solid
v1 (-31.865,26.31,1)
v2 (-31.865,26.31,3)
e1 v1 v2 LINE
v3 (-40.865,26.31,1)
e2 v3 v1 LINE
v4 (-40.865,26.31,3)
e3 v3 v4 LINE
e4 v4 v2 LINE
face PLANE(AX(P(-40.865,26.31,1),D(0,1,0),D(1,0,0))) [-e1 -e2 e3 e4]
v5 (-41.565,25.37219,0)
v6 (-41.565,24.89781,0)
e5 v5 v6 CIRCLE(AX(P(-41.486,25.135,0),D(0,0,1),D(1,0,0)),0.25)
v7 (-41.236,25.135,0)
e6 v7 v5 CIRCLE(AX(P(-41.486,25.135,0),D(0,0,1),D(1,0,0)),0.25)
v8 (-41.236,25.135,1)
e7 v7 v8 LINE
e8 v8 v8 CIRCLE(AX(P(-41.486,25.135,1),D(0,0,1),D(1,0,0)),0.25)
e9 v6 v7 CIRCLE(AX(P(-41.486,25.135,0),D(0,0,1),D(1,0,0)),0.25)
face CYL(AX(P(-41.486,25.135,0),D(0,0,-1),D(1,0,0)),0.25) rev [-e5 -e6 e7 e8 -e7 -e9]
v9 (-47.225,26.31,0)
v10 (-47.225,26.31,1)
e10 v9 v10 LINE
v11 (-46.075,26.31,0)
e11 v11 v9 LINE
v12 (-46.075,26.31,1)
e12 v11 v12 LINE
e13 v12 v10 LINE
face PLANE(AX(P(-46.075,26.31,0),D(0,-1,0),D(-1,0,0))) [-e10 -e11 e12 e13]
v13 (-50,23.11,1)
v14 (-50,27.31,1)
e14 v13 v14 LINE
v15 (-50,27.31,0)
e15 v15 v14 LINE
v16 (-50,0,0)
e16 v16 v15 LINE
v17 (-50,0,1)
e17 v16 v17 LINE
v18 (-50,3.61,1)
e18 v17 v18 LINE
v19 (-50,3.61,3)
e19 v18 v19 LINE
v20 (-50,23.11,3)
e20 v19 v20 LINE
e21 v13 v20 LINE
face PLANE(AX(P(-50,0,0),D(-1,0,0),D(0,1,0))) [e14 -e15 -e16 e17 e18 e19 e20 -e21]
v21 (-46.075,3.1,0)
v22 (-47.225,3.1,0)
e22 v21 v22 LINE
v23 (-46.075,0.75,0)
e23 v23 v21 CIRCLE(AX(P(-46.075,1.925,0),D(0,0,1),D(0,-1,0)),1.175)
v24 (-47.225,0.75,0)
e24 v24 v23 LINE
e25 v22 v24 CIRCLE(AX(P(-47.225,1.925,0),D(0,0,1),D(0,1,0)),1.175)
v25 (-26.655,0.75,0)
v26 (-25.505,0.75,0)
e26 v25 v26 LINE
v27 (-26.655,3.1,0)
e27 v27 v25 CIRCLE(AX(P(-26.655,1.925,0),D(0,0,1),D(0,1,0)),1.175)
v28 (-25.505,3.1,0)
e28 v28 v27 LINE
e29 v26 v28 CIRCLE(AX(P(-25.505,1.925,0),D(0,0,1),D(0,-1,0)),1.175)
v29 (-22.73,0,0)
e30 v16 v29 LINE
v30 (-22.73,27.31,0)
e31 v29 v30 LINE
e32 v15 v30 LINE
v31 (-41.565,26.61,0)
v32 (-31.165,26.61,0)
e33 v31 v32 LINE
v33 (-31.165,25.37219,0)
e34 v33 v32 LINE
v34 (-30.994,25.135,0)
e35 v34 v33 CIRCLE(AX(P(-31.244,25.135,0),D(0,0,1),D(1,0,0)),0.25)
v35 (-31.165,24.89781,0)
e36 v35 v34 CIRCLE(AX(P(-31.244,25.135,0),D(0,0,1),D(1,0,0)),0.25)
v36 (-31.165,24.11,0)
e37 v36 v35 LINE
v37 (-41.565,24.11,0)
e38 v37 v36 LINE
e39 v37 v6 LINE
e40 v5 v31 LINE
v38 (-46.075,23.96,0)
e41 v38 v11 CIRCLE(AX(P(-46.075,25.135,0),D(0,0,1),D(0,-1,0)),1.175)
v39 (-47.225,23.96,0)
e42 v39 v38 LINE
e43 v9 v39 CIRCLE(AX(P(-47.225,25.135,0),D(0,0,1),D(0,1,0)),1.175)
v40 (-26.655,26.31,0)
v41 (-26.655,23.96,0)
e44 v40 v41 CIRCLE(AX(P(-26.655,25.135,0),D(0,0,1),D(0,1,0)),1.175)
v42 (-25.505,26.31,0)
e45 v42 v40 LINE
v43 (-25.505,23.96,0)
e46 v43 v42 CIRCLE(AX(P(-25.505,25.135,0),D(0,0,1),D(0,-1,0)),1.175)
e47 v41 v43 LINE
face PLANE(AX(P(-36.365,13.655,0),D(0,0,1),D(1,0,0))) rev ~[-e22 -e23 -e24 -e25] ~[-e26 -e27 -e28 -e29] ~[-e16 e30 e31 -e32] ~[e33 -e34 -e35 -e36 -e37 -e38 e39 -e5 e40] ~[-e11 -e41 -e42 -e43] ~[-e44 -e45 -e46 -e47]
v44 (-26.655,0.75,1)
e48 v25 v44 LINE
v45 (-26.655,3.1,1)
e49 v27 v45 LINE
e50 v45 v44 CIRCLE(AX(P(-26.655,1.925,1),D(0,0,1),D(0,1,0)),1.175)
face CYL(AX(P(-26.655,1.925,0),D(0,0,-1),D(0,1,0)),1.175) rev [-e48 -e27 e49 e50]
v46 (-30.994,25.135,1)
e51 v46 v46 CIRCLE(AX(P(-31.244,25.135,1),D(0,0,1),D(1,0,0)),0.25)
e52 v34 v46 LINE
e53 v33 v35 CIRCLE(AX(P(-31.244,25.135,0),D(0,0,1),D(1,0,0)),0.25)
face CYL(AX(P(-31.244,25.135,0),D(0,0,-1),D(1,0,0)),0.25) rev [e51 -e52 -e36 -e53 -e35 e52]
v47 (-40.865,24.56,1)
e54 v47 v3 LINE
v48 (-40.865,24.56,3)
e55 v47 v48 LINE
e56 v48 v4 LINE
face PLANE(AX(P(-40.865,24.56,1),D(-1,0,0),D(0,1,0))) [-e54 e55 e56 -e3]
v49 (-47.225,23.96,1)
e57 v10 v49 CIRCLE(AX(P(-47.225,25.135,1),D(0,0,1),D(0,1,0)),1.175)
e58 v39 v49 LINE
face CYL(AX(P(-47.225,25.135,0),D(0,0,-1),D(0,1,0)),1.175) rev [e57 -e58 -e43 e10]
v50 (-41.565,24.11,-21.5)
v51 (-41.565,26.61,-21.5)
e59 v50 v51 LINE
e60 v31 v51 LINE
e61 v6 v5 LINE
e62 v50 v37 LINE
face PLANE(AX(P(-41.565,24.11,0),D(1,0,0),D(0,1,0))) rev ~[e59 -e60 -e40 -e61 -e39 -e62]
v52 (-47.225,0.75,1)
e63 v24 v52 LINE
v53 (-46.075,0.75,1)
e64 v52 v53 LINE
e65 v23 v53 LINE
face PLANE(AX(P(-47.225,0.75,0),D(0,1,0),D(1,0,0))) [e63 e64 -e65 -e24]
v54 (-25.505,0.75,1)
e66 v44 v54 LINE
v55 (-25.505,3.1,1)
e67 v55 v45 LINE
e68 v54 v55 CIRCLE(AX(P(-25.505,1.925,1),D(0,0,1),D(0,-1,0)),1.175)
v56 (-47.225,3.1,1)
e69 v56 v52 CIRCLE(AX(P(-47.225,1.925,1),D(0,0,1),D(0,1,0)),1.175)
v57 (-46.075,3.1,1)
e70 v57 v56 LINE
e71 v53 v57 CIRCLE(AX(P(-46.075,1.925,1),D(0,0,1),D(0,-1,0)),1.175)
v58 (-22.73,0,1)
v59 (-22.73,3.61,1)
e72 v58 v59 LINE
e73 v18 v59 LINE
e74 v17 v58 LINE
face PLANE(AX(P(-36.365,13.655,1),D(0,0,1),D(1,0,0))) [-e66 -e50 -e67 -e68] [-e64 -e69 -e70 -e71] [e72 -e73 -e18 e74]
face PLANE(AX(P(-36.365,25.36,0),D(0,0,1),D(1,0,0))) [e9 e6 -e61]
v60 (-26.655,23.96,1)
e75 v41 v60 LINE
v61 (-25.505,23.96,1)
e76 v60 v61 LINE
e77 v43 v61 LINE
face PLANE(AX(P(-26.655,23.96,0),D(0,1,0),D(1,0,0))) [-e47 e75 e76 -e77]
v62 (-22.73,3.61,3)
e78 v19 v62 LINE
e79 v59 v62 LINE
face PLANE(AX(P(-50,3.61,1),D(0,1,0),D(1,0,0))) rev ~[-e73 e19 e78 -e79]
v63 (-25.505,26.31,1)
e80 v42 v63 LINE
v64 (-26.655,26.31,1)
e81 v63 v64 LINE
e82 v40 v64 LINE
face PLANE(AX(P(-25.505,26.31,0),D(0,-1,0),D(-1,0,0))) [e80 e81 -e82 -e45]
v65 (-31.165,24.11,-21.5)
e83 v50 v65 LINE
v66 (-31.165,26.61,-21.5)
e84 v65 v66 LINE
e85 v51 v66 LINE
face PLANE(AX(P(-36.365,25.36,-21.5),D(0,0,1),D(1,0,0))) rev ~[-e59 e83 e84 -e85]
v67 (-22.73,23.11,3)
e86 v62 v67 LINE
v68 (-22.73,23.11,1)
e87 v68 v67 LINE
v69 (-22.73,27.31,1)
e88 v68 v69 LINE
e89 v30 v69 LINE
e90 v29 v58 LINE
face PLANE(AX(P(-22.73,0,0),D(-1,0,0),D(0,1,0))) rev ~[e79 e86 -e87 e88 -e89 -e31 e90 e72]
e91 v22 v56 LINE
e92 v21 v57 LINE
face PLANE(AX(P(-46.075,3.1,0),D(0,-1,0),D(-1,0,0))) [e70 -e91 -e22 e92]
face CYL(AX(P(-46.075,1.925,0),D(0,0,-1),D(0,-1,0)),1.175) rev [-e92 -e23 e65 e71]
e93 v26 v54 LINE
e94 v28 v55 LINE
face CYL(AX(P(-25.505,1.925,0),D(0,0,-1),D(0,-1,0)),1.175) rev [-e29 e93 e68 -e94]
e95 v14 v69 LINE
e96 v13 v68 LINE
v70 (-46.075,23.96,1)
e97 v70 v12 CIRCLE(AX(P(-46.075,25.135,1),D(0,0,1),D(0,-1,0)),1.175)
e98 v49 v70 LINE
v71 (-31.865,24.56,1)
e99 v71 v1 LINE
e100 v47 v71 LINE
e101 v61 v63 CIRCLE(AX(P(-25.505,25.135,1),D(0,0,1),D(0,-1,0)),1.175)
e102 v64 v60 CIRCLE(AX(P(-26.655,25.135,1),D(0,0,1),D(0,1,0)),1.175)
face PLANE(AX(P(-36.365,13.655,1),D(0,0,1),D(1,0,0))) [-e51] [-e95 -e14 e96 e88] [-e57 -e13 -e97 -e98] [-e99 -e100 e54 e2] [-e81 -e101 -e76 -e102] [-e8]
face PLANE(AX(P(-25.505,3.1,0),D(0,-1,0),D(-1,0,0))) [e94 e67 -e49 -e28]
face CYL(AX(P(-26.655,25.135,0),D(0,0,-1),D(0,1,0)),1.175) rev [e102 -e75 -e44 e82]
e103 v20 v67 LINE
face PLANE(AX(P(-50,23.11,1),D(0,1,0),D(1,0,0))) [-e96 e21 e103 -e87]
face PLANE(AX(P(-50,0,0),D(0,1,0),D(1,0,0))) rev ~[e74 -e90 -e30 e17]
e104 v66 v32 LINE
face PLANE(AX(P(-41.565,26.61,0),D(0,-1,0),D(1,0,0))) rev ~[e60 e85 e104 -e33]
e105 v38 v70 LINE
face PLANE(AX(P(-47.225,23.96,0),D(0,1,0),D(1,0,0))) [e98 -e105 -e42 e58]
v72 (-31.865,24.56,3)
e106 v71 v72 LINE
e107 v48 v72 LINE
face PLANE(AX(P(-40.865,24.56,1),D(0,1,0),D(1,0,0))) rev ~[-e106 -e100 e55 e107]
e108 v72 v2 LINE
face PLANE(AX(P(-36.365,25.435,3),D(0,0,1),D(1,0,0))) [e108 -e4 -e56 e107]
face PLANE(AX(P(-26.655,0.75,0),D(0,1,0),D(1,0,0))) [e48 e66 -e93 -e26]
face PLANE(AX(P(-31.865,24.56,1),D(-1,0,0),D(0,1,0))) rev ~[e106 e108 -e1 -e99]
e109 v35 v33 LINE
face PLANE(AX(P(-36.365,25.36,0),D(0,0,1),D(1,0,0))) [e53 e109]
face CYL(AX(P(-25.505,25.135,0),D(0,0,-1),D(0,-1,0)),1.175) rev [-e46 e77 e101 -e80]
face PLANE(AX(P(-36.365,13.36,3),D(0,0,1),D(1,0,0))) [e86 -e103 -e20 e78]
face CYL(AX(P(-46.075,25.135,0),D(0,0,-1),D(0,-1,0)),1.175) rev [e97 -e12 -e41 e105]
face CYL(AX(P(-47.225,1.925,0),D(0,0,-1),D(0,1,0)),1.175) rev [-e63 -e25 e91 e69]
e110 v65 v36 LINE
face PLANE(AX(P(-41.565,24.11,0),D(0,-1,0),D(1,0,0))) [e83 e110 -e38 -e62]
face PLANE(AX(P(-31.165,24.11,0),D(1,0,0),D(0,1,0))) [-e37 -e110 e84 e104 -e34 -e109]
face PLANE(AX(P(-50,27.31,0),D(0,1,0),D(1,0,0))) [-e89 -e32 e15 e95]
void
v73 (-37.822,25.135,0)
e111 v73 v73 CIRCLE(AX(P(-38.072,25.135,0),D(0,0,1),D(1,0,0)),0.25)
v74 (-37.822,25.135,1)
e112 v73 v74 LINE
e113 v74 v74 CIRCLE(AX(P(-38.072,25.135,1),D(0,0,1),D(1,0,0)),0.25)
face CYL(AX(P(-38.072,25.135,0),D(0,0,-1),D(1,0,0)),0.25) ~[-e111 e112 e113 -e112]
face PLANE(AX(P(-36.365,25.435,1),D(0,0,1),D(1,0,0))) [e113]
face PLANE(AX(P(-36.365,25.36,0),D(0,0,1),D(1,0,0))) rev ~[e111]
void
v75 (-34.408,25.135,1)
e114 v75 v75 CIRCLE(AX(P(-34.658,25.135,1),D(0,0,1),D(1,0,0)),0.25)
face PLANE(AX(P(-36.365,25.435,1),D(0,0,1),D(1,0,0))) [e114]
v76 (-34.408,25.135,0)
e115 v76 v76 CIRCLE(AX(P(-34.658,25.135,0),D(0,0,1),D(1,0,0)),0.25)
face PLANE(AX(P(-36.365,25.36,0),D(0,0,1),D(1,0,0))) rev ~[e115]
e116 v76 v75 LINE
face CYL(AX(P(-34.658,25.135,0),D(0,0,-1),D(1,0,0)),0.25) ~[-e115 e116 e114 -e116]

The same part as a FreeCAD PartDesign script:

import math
import FreeCAD as App
import Part
import Sketcher

V = App.Vector
Q = App.Units.Quantity


def add_polygon(sketch, points):
    """Adds a closed chain of lines whose ends are joined by coincident constraints."""
    first, n = sketch.GeometryCount, len(points)
    for a, b in zip(points, points[1:] + points[:1]):
        sketch.addGeometry(Part.LineSegment(App.Vector(*a, 0), App.Vector(*b, 0)), False)
    for i in range(n):
        sketch.addConstraint(Sketcher.Constraint("Coincident", first + i, 2, first + (i + 1) % n, 1))

doc = App.newDocument("Part")
body = doc.addObject("PartDesign::Body", "Body")
body.AllowCompound = True

# Sketch on XY plane
sketch1 = doc.addObject("Sketcher::SketchObject", "Sketch")
body.addObject(sketch1)
sketch1.AttachmentSupport = (doc.XY_Plane, [""])
sketch1.MapMode = "FlatFace"
add_polygon(sketch1, [(0, 23.1), (0, 3.6), (27.3, 3.6), (27.3, 23.1)])  # lines 0-3
add_polygon(sketch1, [(9.1, 26.3), (9.1, 24.6), (18.1, 24.6), (18.1, 26.3)])  # lines 4-7
sketch1.addConstraint([
    Sketcher.Constraint("Vertical", 0),
    Sketcher.Constraint("Horizontal", 1),
    Sketcher.Constraint("Vertical", 2),
    Sketcher.Constraint("Horizontal", 3),
    Sketcher.Constraint("Vertical", 4),
    Sketcher.Constraint("Horizontal", 5),
    Sketcher.Constraint("Vertical", 6),
    Sketcher.Constraint("Horizontal", 7),
    Sketcher.Constraint("PointOnObject", 0, 2, -2),
    Sketcher.Constraint("DistanceX", 5, 1, 5, 2, Q("9 mm")),
    Sketcher.Constraint("DistanceY", 0, 2, 0, 1, Q("19.5 mm")),
    Sketcher.Constraint("DistanceX", 1, 1, 1, 2, Q("27.27 mm")),
    Sketcher.Constraint("DistanceY", 4, 2, 4, 1, Q("1.75 mm")),
    Sketcher.Constraint("DistanceY", 2, 2, 6, 2, Q("3.2 mm")),
    Sketcher.Constraint("DistanceY", -1, 1, 0, 2, Q("3.61 mm")),
    Sketcher.Constraint("DistanceX", -1, 1, 4, 2, Q("9.135 mm")),
])
pad1 = doc.addObject("PartDesign::Pad", "Pad")
body.addObject(pad1)
pad1.Profile = sketch1
pad1.Length = 2
body2 = doc.addObject("PartDesign::Body", "Body001")
body2.AllowCompound = True
doc.recompute()

body.Placement = App.Placement(V(0, 0, 1), App.Rotation(V(0, 0, 1), 0))
boolean = doc.addObject("PartDesign::Boolean", "Boolean")
body2.addObject(boolean)
boolean.Type = "Fuse"
boolean.addObjects([body])
body3 = doc.addObject("PartDesign::Body", "Body002")

# Sketch on XY plane
sketch2 = doc.addObject("Sketcher::SketchObject", "Sketch001")
body3.addObject(sketch2)
sketch2.AttachmentSupport = (doc.getObject("XY_Plane002"), [""])
sketch2.MapMode = "FlatFace"
add_polygon(sketch2, [(0, 27.31), (0, 0), (27.27, 0), (27.27, 27.31)])  # lines 0-3
sketch2.addGeometry(Part.ArcOfCircle(Part.Circle(V(2.77, 1.93, 0), V(0, 0, 1), 1.18), math.radians(90), math.radians(270)), False)  # 4
sketch2.addGeometry(Part.LineSegment(V(2.77, 3.1, 0), V(3.92, 3.1, 0)), False)  # 5
sketch2.addGeometry(Part.ArcOfCircle(Part.Circle(V(3.92, 1.93, 0), V(0, 0, 1), 1.18), math.radians(-90), math.radians(90)), False)  # 6
sketch2.addGeometry(Part.LineSegment(V(3.92, 0.75, 0), V(2.77, 0.75, 0)), False)  # 7
sketch2.addGeometry(Part.ArcOfCircle(Part.Circle(V(23.34, 1.93, 0), V(0, 0, 1), 1.18), math.radians(90), math.radians(270)), False)  # 8
sketch2.addGeometry(Part.LineSegment(V(23.34, 3.1, 0), V(24.5, 3.1, 0)), False)  # 9
sketch2.addGeometry(Part.ArcOfCircle(Part.Circle(V(24.5, 1.93, 0), V(0, 0, 1), 1.18), math.radians(-90), math.radians(90)), False)  # 10
sketch2.addGeometry(Part.LineSegment(V(24.5, 0.75, 0), V(23.34, 0.75, 0)), False)  # 11
sketch2.addGeometry(Part.ArcOfCircle(Part.Circle(V(2.77, 25.14, 0), V(0, 0, 1), 1.18), math.radians(90), math.radians(270)), False)  # 12
sketch2.addGeometry(Part.LineSegment(V(2.77, 26.31, 0), V(3.92, 26.31, 0)), False)  # 13
sketch2.addGeometry(Part.ArcOfCircle(Part.Circle(V(3.92, 25.14, 0), V(0, 0, 1), 1.18), math.radians(-90), math.radians(90)), False)  # 14
sketch2.addGeometry(Part.LineSegment(V(3.92, 23.96, 0), V(2.77, 23.96, 0)), False)  # 15
sketch2.addGeometry(Part.Circle(V(8.51, 25.14, 0), V(0, 0, 1), 0.25), False)  # 16
sketch2.addGeometry(Part.Circle(V(11.93, 25.14, 0), V(0, 0, 1), 0.25), False)  # 17
sketch2.addGeometry(Part.Circle(V(15.34, 25.14, 0), V(0, 0, 1), 0.25), False)  # 18
sketch2.addGeometry(Part.Circle(V(18.76, 25.14, 0), V(0, 0, 1), 0.25), False)  # 19
sketch2.addGeometry(Part.ArcOfCircle(Part.Circle(V(23.34, 25.14, 0), V(0, 0, 1), 1.18), math.radians(90), math.radians(270)), False)  # 20
sketch2.addGeometry(Part.LineSegment(V(23.34, 26.31, 0), V(24.5, 26.31, 0)), False)  # 21
sketch2.addGeometry(Part.ArcOfCircle(Part.Circle(V(24.5, 25.14, 0), V(0, 0, 1), 1.18), math.radians(-90), math.radians(90)), False)  # 22
sketch2.addGeometry(Part.LineSegment(V(24.5, 23.96, 0), V(23.34, 23.96, 0)), False)  # 23
sketch2.addConstraint([
    Sketcher.Constraint("Tangent", 4, 1, 5, 1),
    Sketcher.Constraint("Tangent", 5, 2, 6, 2),
    Sketcher.Constraint("Tangent", 6, 1, 7, 1),
    Sketcher.Constraint("Tangent", 7, 2, 4, 2),
    Sketcher.Constraint("Tangent", 8, 1, 9, 1),
    Sketcher.Constraint("Tangent", 9, 2, 10, 2),
    Sketcher.Constraint("Tangent", 10, 1, 11, 1),
    Sketcher.Constraint("Tangent", 11, 2, 8, 2),
    Sketcher.Constraint("Tangent", 12, 1, 13, 1),
    Sketcher.Constraint("Tangent", 13, 2, 14, 2),
    Sketcher.Constraint("Tangent", 14, 1, 15, 1),
    Sketcher.Constraint("Tangent", 15, 2, 12, 2),
    Sketcher.Constraint("Tangent", 20, 1, 21, 1),
    Sketcher.Constraint("Tangent", 21, 2, 22, 2),
    Sketcher.Constraint("Tangent", 22, 1, 23, 1),
    Sketcher.Constraint("Tangent", 23, 2, 20, 2),
    Sketcher.Constraint("Vertical", 0),
    Sketcher.Constraint("Horizontal", 1),
    Sketcher.Constraint("Vertical", 2),
    Sketcher.Constraint("Horizontal", 3),
    Sketcher.Constraint("Horizontal", 5),
    Sketcher.Constraint("Horizontal", 7),
    Sketcher.Constraint("Horizontal", 9),
    Sketcher.Constraint("Horizontal", 11),
    Sketcher.Constraint("Horizontal", 13),
    Sketcher.Constraint("Horizontal", 15),
    Sketcher.Constraint("Horizontal", 21),
    Sketcher.Constraint("Horizontal", 23),
    Sketcher.Constraint("Coincident", 0, 2, -1, 1),
    Sketcher.Constraint("Equal", 6, 8),
    Sketcher.Constraint("Equal", 10, 12),
    Sketcher.Constraint("Equal", 16, 17),
    Sketcher.Constraint("Equal", 17, 18),
    Sketcher.Constraint("Equal", 18, 19),
    Sketcher.Constraint("Equal", 14, 20),
    Sketcher.Constraint("Horizontal", 6, 3, 8, 3),
    Sketcher.Constraint("Horizontal", 14, 3, 16, 3),
    Sketcher.Constraint("Horizontal", 16, 3, 17, 3),
    Sketcher.Constraint("Horizontal", 17, 3, 18, 3),
    Sketcher.Constraint("Horizontal", 18, 3, 19, 3),
    Sketcher.Constraint("Horizontal", 19, 3, 20, 3),
    Sketcher.Constraint("Vertical", 4, 3, 12, 3),
    Sketcher.Constraint("Vertical", 6, 3, 14, 3),
    Sketcher.Constraint("Vertical", 8, 3, 20, 3),
    Sketcher.Constraint("Vertical", 10, 3, 22, 3),
    Sketcher.Constraint("Equal", 7, 9),
    Sketcher.Constraint("Diameter", 16, Q("0.5 mm")),
    Sketcher.Constraint("Radius", 4, Q("1.175 mm")),
    Sketcher.Constraint("DistanceY", 12, 1, 3, 2, Q("1 mm")),
    Sketcher.Constraint("DistanceX", 1, 1, 1, 2, Q("27.27 mm")),
    Sketcher.Constraint("DistanceX", 5, 1, 5, 2, Q("1.15 mm")),
    Sketcher.Constraint("DistanceY", 0, 2, 0, 1, Q("27.31 mm")),
    Sketcher.Constraint("DistanceY", -1, 1, 4, 1, Q("3.1 mm")),
    Sketcher.Constraint("DistanceX", 6, 3, 8, 3, Q("19.42 mm")),
    Sketcher.Constraint("DistanceX", -1, 1, 4, 3, Q("2.775 mm")),
    Sketcher.Constraint("DistanceX", -1, 1, 16, 3, Q("8.514 mm")),
    Sketcher.Constraint("DistanceX", -1, 1, 17, 3, Q("11.928 mm")),
    Sketcher.Constraint("DistanceX", -1, 1, 18, 3, Q("15.342 mm")),
    Sketcher.Constraint("DistanceX", -1, 1, 19, 3, Q("18.756 mm")),
])
pad2 = doc.addObject("PartDesign::Pad", "Pad001")
body3.addObject(pad2)
pad2.Profile = sketch2
pad2.Length = 1
body4 = doc.addObject("PartDesign::Body", "Body003")
body4.AllowCompound = True

# Sketch on XY plane
sketch3 = doc.addObject("Sketcher::SketchObject", "Sketch002")
body4.addObject(sketch3)
sketch3.AttachmentSupport = (doc.getObject("XY_Plane003"), [""])
sketch3.MapMode = "FlatFace"
add_polygon(sketch3, [(8.4, 26.6), (8.4, 24.1), (18.8, 24.1), (18.8, 26.6)])  # lines 0-3
sketch3.addConstraint([
    Sketcher.Constraint("Vertical", 0),
    Sketcher.Constraint("Horizontal", 1),
    Sketcher.Constraint("Vertical", 2),
    Sketcher.Constraint("Horizontal", 3),
    Sketcher.Constraint("DistanceX", 1, 1, 1, 2, Q("10.4 mm")),
    Sketcher.Constraint("DistanceY", 0, 2, 0, 1, Q("2.5 mm")),
    Sketcher.Constraint("DistanceY", -1, 1, 0, 2, Q("24.11 mm")),
    Sketcher.Constraint("DistanceX", -1, 1, 0, 2, Q("8.435 mm")),
])
pad3 = doc.addObject("PartDesign::Pad", "Pad002")
body4.addObject(pad3)
pad3.Profile = sketch3
pad3.Length = 8.5
pad3.Reversed = True
doc.recompute()

boolean2 = doc.addObject("PartDesign::Boolean", "Boolean001")
body4.addObject(boolean2)
boolean2.Type = "Fuse"
boolean2.addObjects([body2])
doc.recompute()

boolean3 = doc.addObject("PartDesign::Boolean", "Boolean002")
body4.addObject(boolean3)
boolean3.Type = "Fuse"
boolean3.addObjects([body3])
body5 = doc.addObject("PartDesign::Body", "Body004")

# Sketch on XY plane
sketch4 = doc.addObject("Sketcher::SketchObject", "Sketch003")
body5.addObject(sketch4)
sketch4.AttachmentSupport = (doc.getObject("XY_Plane004"), [""])
sketch4.MapMode = "FlatFace"
add_polygon(sketch4, [(8.4, 26.6), (8.4, 24.1), (18.8, 24.1), (18.8, 26.6)])  # lines 0-3
sketch4.addConstraint([
    Sketcher.Constraint("Vertical", 0),
    Sketcher.Constraint("Horizontal", 1),
    Sketcher.Constraint("Vertical", 2),
    Sketcher.Constraint("Horizontal", 3),
    Sketcher.Constraint("DistanceX", 1, 1, 1, 2, Q("10.4 mm")),
    Sketcher.Constraint("DistanceY", 0, 2, 0, 1, Q("2.5 mm")),
    Sketcher.Constraint("DistanceY", -1, 1, 0, 2, Q("24.11 mm")),
    Sketcher.Constraint("DistanceX", -1, 1, 0, 2, Q("8.435 mm")),
])
pad4 = doc.addObject("PartDesign::Pad", "Pad003")
body5.addObject(pad4)
pad4.Profile = sketch4
pad4.Length = 21.5
pad4.Reversed = True
doc.recompute()

boolean4 = doc.addObject("PartDesign::Boolean", "Boolean003")
body5.addObject(boolean4)
boolean4.Type = "Fuse"
boolean4.addObjects([body4])
body6 = doc.addObject("PartDesign::Body", "Body005")
doc.recompute()

body5.Placement = App.Placement(V(-50, 0, 0), App.Rotation(V(0, 0, 1), 0))
boolean5 = doc.addObject("PartDesign::Boolean", "Boolean004")
body6.addObject(boolean5)
boolean5.Type = "Fuse"
boolean5.addObjects([body5])

doc.recompute()
